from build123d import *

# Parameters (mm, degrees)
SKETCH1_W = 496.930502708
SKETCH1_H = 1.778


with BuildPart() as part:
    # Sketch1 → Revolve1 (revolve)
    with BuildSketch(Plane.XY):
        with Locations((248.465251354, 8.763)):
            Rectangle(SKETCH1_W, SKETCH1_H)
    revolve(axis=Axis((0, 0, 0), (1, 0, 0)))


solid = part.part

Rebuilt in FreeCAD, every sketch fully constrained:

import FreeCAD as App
import Part
import Sketcher
Q = App.Units.Quantity


def add_polygon(sketch, points):
    """Adds a closed chain of lines whose ends are joined by coincident constraints."""
    first, n = sketch.GeometryCount, len(points)
    for a, b in zip(points, points[1:] + points[:1]):
        sketch.addGeometry(Part.LineSegment(App.Vector(*a, 0), App.Vector(*b, 0)), False)
    for i in range(n):
        sketch.addConstraint(Sketcher.Constraint("Coincident", first + i, 2, first + (i + 1) % n, 1))

doc = App.newDocument("Part")
body = doc.addObject("PartDesign::Body", "Body")

# Sketch on XY plane
sketch1 = body.newObject("Sketcher::SketchObject", "Sketch")
sketch1.AttachmentSupport = (doc.getObject("XY_Plane"), [""])
sketch1.MapMode = "FlatFace"
add_polygon(sketch1, [(0, 9.7), (0, 7.9), (496.9, 7.9), (496.9, 9.7)])  # lines 0-3
sketch1.addConstraint([
    Sketcher.Constraint("Vertical", 0),
    Sketcher.Constraint("Horizontal", 1),
    Sketcher.Constraint("Vertical", 2),
    Sketcher.Constraint("Horizontal", 3),
    Sketcher.Constraint("PointOnObject", 0, 2, -2),
    Sketcher.Constraint("DistanceY", 0, 2, 0, 1, Q("0.07 in")),
    Sketcher.Constraint("DistanceY", -1, 1, 0, 2, Q("0.31 in")),
    Sketcher.Constraint("DistanceX", 1, 1, 1, 2, Q("496.930503 mm")),
])
revolution = body.newObject("PartDesign::Revolution", "Revolution")
revolution.Profile = sketch1
revolution.ReferenceAxis = (sketch1, ["H_Axis"])
revolution.Angle = 360

doc.recompute()
